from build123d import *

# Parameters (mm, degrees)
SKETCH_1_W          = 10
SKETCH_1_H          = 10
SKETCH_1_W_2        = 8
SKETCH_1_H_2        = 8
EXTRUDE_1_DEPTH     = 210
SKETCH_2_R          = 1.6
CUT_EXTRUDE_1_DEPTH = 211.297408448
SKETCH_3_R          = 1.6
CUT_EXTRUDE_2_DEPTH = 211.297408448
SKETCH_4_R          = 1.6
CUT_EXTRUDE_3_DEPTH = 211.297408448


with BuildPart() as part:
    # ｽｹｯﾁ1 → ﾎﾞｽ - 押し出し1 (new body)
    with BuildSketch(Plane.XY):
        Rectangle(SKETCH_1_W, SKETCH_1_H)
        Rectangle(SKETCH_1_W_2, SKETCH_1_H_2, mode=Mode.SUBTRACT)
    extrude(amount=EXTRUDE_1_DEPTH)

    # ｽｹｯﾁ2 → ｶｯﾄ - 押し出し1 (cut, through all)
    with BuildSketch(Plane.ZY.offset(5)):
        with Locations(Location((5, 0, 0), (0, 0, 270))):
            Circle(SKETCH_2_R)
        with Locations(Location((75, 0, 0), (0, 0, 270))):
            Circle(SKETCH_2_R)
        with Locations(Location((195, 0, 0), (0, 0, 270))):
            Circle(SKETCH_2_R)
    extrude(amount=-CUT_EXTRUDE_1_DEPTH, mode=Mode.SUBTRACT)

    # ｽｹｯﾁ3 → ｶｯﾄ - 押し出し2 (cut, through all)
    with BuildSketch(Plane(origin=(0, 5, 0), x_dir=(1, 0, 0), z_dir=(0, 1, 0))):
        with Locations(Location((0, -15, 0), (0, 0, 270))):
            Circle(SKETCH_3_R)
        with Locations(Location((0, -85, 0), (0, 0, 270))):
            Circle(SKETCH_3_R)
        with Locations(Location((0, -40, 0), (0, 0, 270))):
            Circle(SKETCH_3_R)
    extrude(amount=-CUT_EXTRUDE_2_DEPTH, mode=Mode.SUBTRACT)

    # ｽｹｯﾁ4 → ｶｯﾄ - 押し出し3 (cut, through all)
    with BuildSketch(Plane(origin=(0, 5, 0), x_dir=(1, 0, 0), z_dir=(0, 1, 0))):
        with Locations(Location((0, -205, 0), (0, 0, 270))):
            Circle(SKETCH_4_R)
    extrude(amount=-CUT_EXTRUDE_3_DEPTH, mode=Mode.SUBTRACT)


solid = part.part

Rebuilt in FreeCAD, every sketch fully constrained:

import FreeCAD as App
import Part
import Sketcher
from FreeCAD import Vector


def add_polygon(sketch, points):
    """Adds a closed chain of lines whose ends are joined by coincident constraints."""
    first, n = sketch.GeometryCount, len(points)
    for a, b in zip(points, points[1:] + points[:1]):
        sketch.addGeometry(Part.LineSegment(App.Vector(*a, 0), App.Vector(*b, 0)), False)
    for i in range(n):
        sketch.addConstraint(Sketcher.Constraint("Coincident", first + i, 2, first + (i + 1) % n, 1))

doc = App.newDocument("Part")
body = doc.addObject("PartDesign::Body", "Body")

# Sketch on XY plane
sketch1 = body.newObject("Sketcher::SketchObject", "Sketch")
sketch1.AttachmentSupport = (doc.getObject("XY_Plane"), [""])
sketch1.MapMode = "FlatFace"
add_polygon(sketch1, [(-5, 5), (-5, -5), (5, -5), (5, 5)])  # lines 0-3
add_polygon(sketch1, [(4, -4), (-4, -4), (-4, 4), (4, 4)])  # lines 4-7
sketch1.addConstraint([
    Sketcher.Constraint("Vertical", 0),
    Sketcher.Constraint("Horizontal", 1),
    Sketcher.Constraint("Vertical", 2),
    Sketcher.Constraint("Horizontal", 3),
    Sketcher.Constraint("Horizontal", 4),
    Sketcher.Constraint("Vertical", 5),
    Sketcher.Constraint("Horizontal", 6),
    Sketcher.Constraint("Vertical", 7),
    Sketcher.Constraint("Symmetric", 0, 2, 2, 2, -1, 1),
    Sketcher.Constraint("Symmetric", 4, 2, 6, 2, -1, 1),
    Sketcher.Constraint("Equal", 3, 0),
    Sketcher.Constraint("Equal", 6, 5),
    Sketcher.Constraint("DistanceX", 1, 1, 1, 2, 10.0),
    Sketcher.Constraint("DistanceX", 4, 2, 4, 1, 8.0),
])
pad1 = body.newObject("PartDesign::Pad", "Pad")
pad1.Profile = sketch1
pad1.Length = 210

# Sketch on YZ plane
sketch2 = body.newObject("Sketcher::SketchObject", "Sketch001")
sketch2.AttachmentSupport = (doc.getObject("YZ_Plane"), [""])
sketch2.MapMode = "FlatFace"
sketch2.AttachmentOffset = App.Placement(Vector(0, 0, -5), App.Rotation())
sketch2.addGeometry([
    Part.Circle(Vector(0, 5, 0), Vector(0, 0, 1), 1.6),
    Part.Circle(Vector(0, 75, 0), Vector(0, 0, 1), 1.6),
    Part.Circle(Vector(0, 195, 0), Vector(0, 0, 1), 1.6),
], False)
sketch2.addConstraint([
    Sketcher.Constraint("Equal", 0, 1),
    Sketcher.Constraint("Equal", 1, 2),
    Sketcher.Constraint("PointOnObject", 0, 3, -2),
    Sketcher.Constraint("PointOnObject", 1, 3, -2),
    Sketcher.Constraint("PointOnObject", 2, 3, -2),
    Sketcher.Constraint("Diameter", 0, 3.2),
    Sketcher.Constraint("DistanceY", -1, 1, 0, 3, 5.0),
    Sketcher.Constraint("DistanceY", -1, 1, 1, 3, 75.0),
    Sketcher.Constraint("DistanceY", -1, 1, 2, 3, 195.0),
])
pocket1 = body.newObject("PartDesign::Pocket", "Pocket")
pocket1.Profile = sketch2
pocket1.Type = "ThroughAll"
pocket1.Reversed = True

# Sketch on XZ plane
sketch3 = body.newObject("Sketcher::SketchObject", "Sketch002")
sketch3.AttachmentSupport = (doc.getObject("XZ_Plane"), [""])
sketch3.MapMode = "FlatFace"
sketch3.AttachmentOffset = App.Placement(Vector(0, 0, -5), App.Rotation())
sketch3.addGeometry([
    Part.Circle(Vector(0, 15, 0), Vector(0, 0, 1), 1.6),
    Part.Circle(Vector(0, 85, 0), Vector(0, 0, 1), 1.6),
    Part.Circle(Vector(0, 40, 0), Vector(0, 0, 1), 1.6),
], False)
sketch3.addConstraint([
    Sketcher.Constraint("Equal", 0, 1),
    Sketcher.Constraint("Equal", 1, 2),
    Sketcher.Constraint("PointOnObject", 0, 3, -2),
    Sketcher.Constraint("PointOnObject", 1, 3, -2),
    Sketcher.Constraint("PointOnObject", 2, 3, -2),
    Sketcher.Constraint("Diameter", 0, 3.2),
    Sketcher.Constraint("DistanceY", -1, 1, 0, 3, 15.0),
    Sketcher.Constraint("DistanceY", -1, 1, 1, 3, 85.0),
    Sketcher.Constraint("DistanceY", -1, 1, 2, 3, 40.0),
])
pocket2 = body.newObject("PartDesign::Pocket", "Pocket001")
pocket2.Profile = sketch3
pocket2.Type = "ThroughAll"
pocket2.Reversed = True

# Sketch on XZ plane
sketch4 = body.newObject("Sketcher::SketchObject", "Sketch003")
sketch4.AttachmentSupport = (doc.getObject("XZ_Plane"), [""])
sketch4.MapMode = "FlatFace"
sketch4.AttachmentOffset = App.Placement(Vector(0, 0, -5), App.Rotation())
sketch4.addGeometry(Part.Circle(Vector(0, 205, 0), Vector(0, 0, 1), 1.6), False)
sketch4.addConstraint([
    Sketcher.Constraint("PointOnObject", 0, 3, -2),
    Sketcher.Constraint("Diameter", 0, 3.2),
    Sketcher.Constraint("DistanceY", -1, 1, 0, 3, 205.0),
])
pocket3 = body.newObject("PartDesign::Pocket", "Pocket002")
pocket3.Profile = sketch4
pocket3.Type = "ThroughAll"
pocket3.Reversed = True

doc.recompute()
